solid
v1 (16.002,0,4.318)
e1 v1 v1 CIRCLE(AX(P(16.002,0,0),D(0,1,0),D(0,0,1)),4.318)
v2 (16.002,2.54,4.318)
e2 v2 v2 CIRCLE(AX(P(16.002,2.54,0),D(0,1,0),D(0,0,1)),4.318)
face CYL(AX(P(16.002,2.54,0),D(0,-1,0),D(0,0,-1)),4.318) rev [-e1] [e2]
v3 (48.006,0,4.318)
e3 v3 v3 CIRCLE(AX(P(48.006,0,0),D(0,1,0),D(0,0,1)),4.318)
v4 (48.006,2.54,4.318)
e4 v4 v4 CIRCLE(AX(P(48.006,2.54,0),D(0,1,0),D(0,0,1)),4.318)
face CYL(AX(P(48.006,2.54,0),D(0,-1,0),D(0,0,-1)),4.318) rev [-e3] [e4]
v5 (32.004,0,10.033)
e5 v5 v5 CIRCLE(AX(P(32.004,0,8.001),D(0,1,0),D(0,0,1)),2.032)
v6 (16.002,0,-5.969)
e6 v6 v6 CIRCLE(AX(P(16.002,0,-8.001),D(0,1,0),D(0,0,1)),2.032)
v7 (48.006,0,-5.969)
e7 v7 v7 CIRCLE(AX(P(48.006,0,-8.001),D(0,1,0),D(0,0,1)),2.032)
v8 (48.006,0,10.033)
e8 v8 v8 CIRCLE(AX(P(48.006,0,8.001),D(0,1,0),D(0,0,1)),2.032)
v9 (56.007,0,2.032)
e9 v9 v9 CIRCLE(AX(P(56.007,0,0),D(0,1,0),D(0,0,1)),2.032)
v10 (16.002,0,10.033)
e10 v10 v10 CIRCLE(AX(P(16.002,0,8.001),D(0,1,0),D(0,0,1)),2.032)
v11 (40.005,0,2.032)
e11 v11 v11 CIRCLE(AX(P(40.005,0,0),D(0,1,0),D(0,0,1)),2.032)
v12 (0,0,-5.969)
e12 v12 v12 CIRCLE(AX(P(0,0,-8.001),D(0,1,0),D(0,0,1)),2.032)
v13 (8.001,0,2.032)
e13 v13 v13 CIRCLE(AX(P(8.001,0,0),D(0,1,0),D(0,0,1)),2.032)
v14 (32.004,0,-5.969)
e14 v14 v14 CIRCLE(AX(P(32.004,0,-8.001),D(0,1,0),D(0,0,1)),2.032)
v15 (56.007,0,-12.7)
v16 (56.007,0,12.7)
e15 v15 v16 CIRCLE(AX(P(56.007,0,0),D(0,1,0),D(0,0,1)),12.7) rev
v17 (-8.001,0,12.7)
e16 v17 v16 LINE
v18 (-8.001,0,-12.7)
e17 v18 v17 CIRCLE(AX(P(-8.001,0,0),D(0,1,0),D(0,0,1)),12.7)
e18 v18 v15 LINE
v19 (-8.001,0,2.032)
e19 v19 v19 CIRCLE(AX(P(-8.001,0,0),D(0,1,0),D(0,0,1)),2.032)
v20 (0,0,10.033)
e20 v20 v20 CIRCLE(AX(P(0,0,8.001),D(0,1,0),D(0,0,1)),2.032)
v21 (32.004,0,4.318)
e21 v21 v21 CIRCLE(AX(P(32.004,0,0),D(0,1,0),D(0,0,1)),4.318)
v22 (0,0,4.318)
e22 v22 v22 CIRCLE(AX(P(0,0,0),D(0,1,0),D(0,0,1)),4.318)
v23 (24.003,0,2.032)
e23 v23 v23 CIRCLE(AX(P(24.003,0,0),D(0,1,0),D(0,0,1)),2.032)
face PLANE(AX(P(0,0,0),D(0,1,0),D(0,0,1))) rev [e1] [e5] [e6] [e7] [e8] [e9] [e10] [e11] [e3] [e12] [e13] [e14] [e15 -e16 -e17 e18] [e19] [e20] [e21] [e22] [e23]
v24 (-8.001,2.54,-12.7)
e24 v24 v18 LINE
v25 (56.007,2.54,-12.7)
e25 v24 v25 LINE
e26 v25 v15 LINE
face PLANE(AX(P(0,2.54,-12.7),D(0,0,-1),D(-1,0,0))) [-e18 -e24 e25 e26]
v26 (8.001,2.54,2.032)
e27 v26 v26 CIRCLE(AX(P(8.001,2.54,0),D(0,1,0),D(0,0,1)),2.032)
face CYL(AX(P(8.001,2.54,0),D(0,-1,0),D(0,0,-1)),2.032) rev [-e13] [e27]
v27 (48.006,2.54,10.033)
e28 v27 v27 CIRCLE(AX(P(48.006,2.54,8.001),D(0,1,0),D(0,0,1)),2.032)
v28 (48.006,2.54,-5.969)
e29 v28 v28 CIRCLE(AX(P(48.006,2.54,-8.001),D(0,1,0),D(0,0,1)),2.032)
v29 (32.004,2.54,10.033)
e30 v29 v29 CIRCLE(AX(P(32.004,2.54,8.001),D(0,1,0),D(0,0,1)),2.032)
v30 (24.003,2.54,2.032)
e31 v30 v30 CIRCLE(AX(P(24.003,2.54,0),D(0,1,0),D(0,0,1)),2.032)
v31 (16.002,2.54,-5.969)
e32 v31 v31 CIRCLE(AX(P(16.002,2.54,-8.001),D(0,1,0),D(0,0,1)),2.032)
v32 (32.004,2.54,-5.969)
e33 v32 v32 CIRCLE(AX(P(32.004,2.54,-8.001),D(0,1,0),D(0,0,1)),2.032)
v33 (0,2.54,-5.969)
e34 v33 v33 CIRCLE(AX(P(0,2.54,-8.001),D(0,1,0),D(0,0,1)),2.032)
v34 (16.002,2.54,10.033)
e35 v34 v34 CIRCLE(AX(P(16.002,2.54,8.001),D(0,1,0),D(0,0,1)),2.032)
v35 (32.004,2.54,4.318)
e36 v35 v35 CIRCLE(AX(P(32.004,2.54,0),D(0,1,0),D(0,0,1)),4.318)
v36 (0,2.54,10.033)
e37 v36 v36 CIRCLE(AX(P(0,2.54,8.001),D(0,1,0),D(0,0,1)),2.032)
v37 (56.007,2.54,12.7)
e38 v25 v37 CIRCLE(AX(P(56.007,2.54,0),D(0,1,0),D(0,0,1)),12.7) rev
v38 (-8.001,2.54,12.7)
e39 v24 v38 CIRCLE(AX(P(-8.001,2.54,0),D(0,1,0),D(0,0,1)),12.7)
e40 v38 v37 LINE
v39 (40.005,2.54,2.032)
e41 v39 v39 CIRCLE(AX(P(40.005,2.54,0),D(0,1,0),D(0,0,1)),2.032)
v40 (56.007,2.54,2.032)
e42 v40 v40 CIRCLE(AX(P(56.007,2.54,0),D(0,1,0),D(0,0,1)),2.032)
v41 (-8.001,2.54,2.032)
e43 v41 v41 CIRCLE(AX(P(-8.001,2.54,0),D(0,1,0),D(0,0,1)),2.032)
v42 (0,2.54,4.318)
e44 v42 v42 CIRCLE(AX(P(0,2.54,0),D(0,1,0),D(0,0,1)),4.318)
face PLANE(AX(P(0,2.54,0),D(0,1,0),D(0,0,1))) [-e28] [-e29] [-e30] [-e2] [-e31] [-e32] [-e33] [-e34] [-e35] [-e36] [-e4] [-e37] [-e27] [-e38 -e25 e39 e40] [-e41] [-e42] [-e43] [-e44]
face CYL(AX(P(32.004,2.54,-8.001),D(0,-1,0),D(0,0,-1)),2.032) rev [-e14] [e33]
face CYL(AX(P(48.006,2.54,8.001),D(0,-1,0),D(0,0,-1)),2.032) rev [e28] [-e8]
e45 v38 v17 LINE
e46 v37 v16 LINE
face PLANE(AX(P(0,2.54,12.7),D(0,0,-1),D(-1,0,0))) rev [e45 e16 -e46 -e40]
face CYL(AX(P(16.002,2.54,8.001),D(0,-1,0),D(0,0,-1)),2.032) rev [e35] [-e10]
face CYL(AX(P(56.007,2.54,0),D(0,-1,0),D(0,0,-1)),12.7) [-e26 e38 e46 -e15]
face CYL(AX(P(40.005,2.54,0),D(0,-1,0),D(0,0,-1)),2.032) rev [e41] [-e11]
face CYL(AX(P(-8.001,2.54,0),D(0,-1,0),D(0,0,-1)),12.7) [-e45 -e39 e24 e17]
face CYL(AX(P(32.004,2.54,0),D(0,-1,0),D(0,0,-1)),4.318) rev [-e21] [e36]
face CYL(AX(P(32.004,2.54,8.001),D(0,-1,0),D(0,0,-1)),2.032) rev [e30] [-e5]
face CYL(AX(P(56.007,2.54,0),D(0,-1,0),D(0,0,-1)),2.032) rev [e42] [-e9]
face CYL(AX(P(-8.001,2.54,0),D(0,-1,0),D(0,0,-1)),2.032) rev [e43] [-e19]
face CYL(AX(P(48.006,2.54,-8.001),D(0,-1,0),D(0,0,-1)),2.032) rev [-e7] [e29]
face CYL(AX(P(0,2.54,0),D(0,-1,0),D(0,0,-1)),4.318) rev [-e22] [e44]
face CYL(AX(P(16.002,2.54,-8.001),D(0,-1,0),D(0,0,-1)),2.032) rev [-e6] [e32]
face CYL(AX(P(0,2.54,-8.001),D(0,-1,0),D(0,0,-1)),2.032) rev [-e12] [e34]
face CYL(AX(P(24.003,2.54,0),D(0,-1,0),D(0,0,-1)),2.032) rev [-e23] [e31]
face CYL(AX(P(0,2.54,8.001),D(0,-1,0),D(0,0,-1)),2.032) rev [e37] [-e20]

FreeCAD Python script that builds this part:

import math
import FreeCAD as App
import Part
import Sketcher
Q = App.Units.Quantity

doc = App.newDocument("Part")
body = doc.addObject("PartDesign::Body", "Body")

# Sketch on XZ plane
sketch1 = body.newObject("Sketcher::SketchObject", "Sketch")
sketch1.AttachmentSupport = (doc.getObject("XZ_Plane"), [""])
sketch1.MapMode = "FlatFace"
sketch1.addGeometry([
    Part.ArcOfCircle(Part.Circle(App.Vector(56, 0, 0), App.Vector(0, 0, 1), 12.7), math.radians(-90), math.radians(90)),  # 0
    Part.LineSegment(App.Vector(56, -12.7, 0), App.Vector(-8, -12.7, 0)),  # 1
    Part.ArcOfCircle(Part.Circle(App.Vector(-8, 0, 0), App.Vector(0, 0, 1), 12.7), math.radians(90), math.radians(270)),  # 2
    Part.LineSegment(App.Vector(-8, 12.7, 0), App.Vector(56, 12.7, 0)),  # 3
    Part.Circle(App.Vector(48, 8, 0), App.Vector(0, 0, 1), 2),  # 4
    Part.Circle(App.Vector(32, 8, 0), App.Vector(0, 0, 1), 2),  # 5
    Part.Circle(App.Vector(16, 8, 0), App.Vector(0, 0, 1), 2),  # 6
    Part.Circle(App.Vector(0, 8, 0), App.Vector(0, 0, 1), 2),  # 7
    Part.Circle(App.Vector(56, 0, 0), App.Vector(0, 0, 1), 2),  # 8
    Part.Circle(App.Vector(48, 0, 0), App.Vector(0, 0, 1), 4.3),  # 9
    Part.Circle(App.Vector(40, 0, 0), App.Vector(0, 0, 1), 2),  # 10
    Part.Circle(App.Vector(32, 0, 0), App.Vector(0, 0, 1), 4.3),  # 11
    Part.Circle(App.Vector(24, 0, 0), App.Vector(0, 0, 1), 2),  # 12
    Part.Circle(App.Vector(48, -8, 0), App.Vector(0, 0, 1), 2),  # 13
    Part.Circle(App.Vector(32, -8, 0), App.Vector(0, 0, 1), 2),  # 14
    Part.Circle(App.Vector(16, 0, 0), App.Vector(0, 0, 1), 4.3),  # 15
    Part.Circle(App.Vector(8, 0, 0), App.Vector(0, 0, 1), 2),  # 16
    Part.Circle(App.Vector(0, 0, 0), App.Vector(0, 0, 1), 4.3),  # 17
    Part.Circle(App.Vector(-8, 0, 0), App.Vector(0, 0, 1), 2),  # 18
    Part.Circle(App.Vector(16, -8, 0), App.Vector(0, 0, 1), 2),  # 19
    Part.Circle(App.Vector(0, -8, 0), App.Vector(0, 0, 1), 2),  # 20
], False)
sketch1.addConstraint([
    Sketcher.Constraint("Tangent", 0, 1, 1, 1),
    Sketcher.Constraint("Tangent", 1, 2, 2, 2),
    Sketcher.Constraint("Tangent", 2, 1, 3, 1),
    Sketcher.Constraint("Tangent", 3, 2, 0, 2),
    Sketcher.Constraint("Horizontal", 1),
    Sketcher.Constraint("Horizontal", 3),
    Sketcher.Constraint("Coincident", 17, 3, -1, 1),
    Sketcher.Constraint("Coincident", 8, 3, 0, 3),
    Sketcher.Constraint("Coincident", 18, 3, 2, 3),
    Sketcher.Constraint("Equal", 4, 5),
    Sketcher.Constraint("Equal", 5, 6),
    Sketcher.Constraint("Equal", 6, 7),
    Sketcher.Constraint("Equal", 7, 8),
    Sketcher.Constraint("Equal", 8, 10),
    Sketcher.Constraint("Equal", 9, 11),
    Sketcher.Constraint("Equal", 10, 12),
    Sketcher.Constraint("Equal", 12, 13),
    Sketcher.Constraint("Equal", 13, 14),
    Sketcher.Constraint("Equal", 11, 15),
    Sketcher.Constraint("Equal", 14, 16),
    Sketcher.Constraint("Equal", 15, 17),
    Sketcher.Constraint("Equal", 16, 18),
    Sketcher.Constraint("Equal", 18, 19),
    Sketcher.Constraint("Equal", 19, 20),
    Sketcher.Constraint("Symmetric", 2, 3, 16, 3, -1, 1),
    Sketcher.Constraint("Symmetric", 7, 3, 20, 3, -1, 1),
    Sketcher.Constraint("Symmetric", 4, 3, 13, 3, -1),
    Sketcher.Constraint("Symmetric", 5, 3, 14, 3, -1),
    Sketcher.Constraint("Symmetric", 6, 3, 19, 3, -1),
    Sketcher.Constraint("PointOnObject", 0, 3, -1),
    Sketcher.Constraint("PointOnObject", 7, 3, -2),
    Sketcher.Constraint("PointOnObject", 9, 3, -1),
    Sketcher.Constraint("PointOnObject", 10, 3, -1),
    Sketcher.Constraint("PointOnObject", 11, 3, -1),
    Sketcher.Constraint("PointOnObject", 12, 3, -1),
    Sketcher.Constraint("PointOnObject", 15, 3, -1),
    Sketcher.Constraint("Horizontal", 4, 3, 5, 3),
    Sketcher.Constraint("Horizontal", 5, 3, 6, 3),
    Sketcher.Constraint("Horizontal", 6, 3, 7, 3),
    Sketcher.Constraint("Vertical", 4, 3, 9, 3),
    Sketcher.Constraint("Vertical", 5, 3, 11, 3),
    Sketcher.Constraint("Vertical", 6, 3, 15, 3),
    Sketcher.Constraint("Radius", 0, Q("0.5 in")),
    Sketcher.Constraint("Diameter", 4, Q("0.16 in")),
    Sketcher.Constraint("Diameter", 9, Q("0.34 in")),
    Sketcher.Constraint("DistanceX", 1, 2, 1, 1, Q("2.52 in")),
    Sketcher.Constraint("DistanceX", -1, 1, 4, 3, Q("1.89 in")),
    Sketcher.Constraint("DistanceX", -1, 1, 5, 3, Q("1.26 in")),
    Sketcher.Constraint("DistanceX", -1, 1, 6, 3, Q("0.63 in")),
    Sketcher.Constraint("DistanceX", 10, 3, 0, 3, Q("0.63 in")),
    Sketcher.Constraint("DistanceX", 12, 3, 10, 3, Q("0.63 in")),
    Sketcher.Constraint("DistanceY", 13, 3, 4, 3, Q("0.63 in")),
    Sketcher.Constraint("DistanceX", 2, 3, 16, 3, Q("0.63 in")),
])
pad1 = body.newObject("PartDesign::Pad", "Pad")
pad1.Profile = sketch1
pad1.Length = Q("0.1 in")
pad1.Reversed = True

doc.recompute()
